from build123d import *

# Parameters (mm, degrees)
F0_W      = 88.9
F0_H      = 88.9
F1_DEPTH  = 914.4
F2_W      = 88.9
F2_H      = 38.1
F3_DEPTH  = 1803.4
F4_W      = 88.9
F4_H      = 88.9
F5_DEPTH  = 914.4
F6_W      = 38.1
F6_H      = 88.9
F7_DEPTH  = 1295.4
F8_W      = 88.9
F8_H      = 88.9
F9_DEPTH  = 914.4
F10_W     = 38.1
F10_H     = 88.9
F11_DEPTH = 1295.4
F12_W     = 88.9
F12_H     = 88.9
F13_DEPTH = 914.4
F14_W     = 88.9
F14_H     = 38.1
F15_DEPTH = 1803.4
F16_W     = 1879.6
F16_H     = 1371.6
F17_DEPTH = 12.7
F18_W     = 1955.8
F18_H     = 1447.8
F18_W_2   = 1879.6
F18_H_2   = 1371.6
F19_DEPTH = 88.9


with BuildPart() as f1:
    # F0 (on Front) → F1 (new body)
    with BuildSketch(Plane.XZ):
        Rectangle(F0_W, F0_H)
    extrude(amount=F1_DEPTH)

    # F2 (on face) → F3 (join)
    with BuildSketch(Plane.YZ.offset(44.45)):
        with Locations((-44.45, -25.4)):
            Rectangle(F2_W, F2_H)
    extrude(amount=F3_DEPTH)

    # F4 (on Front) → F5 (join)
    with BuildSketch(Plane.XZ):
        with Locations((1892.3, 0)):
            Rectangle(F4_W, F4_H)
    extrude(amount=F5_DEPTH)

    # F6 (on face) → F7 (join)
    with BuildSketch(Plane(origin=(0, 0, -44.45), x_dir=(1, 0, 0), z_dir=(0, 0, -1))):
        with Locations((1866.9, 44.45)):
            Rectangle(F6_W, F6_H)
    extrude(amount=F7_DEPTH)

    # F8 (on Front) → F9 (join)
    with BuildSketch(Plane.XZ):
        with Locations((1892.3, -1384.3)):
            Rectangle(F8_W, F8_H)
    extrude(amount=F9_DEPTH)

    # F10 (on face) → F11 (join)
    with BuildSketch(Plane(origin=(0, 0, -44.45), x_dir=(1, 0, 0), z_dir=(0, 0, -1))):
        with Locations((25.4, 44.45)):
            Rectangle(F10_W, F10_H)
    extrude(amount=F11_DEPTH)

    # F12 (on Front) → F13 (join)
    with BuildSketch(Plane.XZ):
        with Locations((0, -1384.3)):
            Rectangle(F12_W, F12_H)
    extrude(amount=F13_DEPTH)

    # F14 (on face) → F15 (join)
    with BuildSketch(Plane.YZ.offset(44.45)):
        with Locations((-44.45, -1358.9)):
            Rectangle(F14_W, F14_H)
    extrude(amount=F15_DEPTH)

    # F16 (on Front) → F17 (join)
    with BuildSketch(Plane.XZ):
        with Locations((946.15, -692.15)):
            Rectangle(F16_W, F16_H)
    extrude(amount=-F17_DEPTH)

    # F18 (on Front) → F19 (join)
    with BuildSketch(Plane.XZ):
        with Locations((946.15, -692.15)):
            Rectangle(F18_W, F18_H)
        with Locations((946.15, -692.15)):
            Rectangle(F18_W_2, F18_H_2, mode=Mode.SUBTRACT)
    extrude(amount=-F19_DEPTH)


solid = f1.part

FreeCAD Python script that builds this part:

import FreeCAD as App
import Part
import Sketcher

V = App.Vector
Q = App.Units.Quantity

doc = App.newDocument("Part")
body = doc.addObject("PartDesign::Body", "Body")

# Sketch on XZ plane
sketch1 = doc.addObject("Sketcher::SketchObject", "Sketch")
body.addObject(sketch1)
sketch1.AttachmentSupport = (doc.XZ_Plane, [""])
sketch1.MapMode = "FlatFace"
sketch1.addGeometry(Part.LineSegment(V(-44, 44, 0), V(-44, -44, 0)), False)
sketch1.addGeometry(Part.LineSegment(V(-44, -44, 0), V(44, -44, 0)), False)
sketch1.addGeometry(Part.LineSegment(V(44, -44, 0), V(44, 44, 0)), False)
sketch1.addGeometry(Part.LineSegment(V(44, 44, 0), V(-44, 44, 0)), False)
sketch1.addConstraint(Sketcher.Constraint("Coincident", 0, 2, 1, 1))
sketch1.addConstraint(Sketcher.Constraint("Coincident", 1, 2, 2, 1))
sketch1.addConstraint(Sketcher.Constraint("Coincident", 2, 2, 3, 1))
sketch1.addConstraint(Sketcher.Constraint("Coincident", 3, 2, 0, 1))
sketch1.addConstraint(Sketcher.Constraint("Vertical", 0))
sketch1.addConstraint(Sketcher.Constraint("Horizontal", 1))
sketch1.addConstraint(Sketcher.Constraint("Vertical", 2))
sketch1.addConstraint(Sketcher.Constraint("Horizontal", 3))
sketch1.addConstraint(Sketcher.Constraint("Symmetric", 0, 2, 2, 2, -1, 1))
sketch1.addConstraint(Sketcher.Constraint("Equal", 3, 0))
sketch1.addConstraint(Sketcher.Constraint("DistanceX", 1, 1, 1, 2, Q("3.5 in")))
pad1 = doc.addObject("PartDesign::Pad", "Pad")
body.addObject(pad1)
pad1.Profile = sketch1
pad1.Length = Q("36 in")

# Sketch on YZ plane
sketch2 = doc.addObject("Sketcher::SketchObject", "Sketch001")
body.addObject(sketch2)
sketch2.AttachmentSupport = (doc.YZ_Plane, [""])
sketch2.MapMode = "FlatFace"
sketch2.AttachmentOffset = App.Placement(V(0, 0, 1.75 * 25.4), App.Rotation())
sketch2.addGeometry(Part.LineSegment(V(-89, -6, 0), V(-89, -44, 0)), False)
sketch2.addGeometry(Part.LineSegment(V(-89, -44, 0), V(0, -44, 0)), False)
sketch2.addGeometry(Part.LineSegment(V(0, -44, 0), V(0, -6, 0)), False)
sketch2.addGeometry(Part.LineSegment(V(0, -6, 0), V(-89, -6, 0)), False)
sketch2.addConstraint(Sketcher.Constraint("Coincident", 0, 2, 1, 1))
sketch2.addConstraint(Sketcher.Constraint("Coincident", 1, 2, 2, 1))
sketch2.addConstraint(Sketcher.Constraint("Coincident", 2, 2, 3, 1))
sketch2.addConstraint(Sketcher.Constraint("Coincident", 3, 2, 0, 1))
sketch2.addConstraint(Sketcher.Constraint("Vertical", 0))
sketch2.addConstraint(Sketcher.Constraint("Horizontal", 1))
sketch2.addConstraint(Sketcher.Constraint("Vertical", 2))
sketch2.addConstraint(Sketcher.Constraint("Horizontal", 3))
sketch2.addConstraint(Sketcher.Constraint("PointOnObject", 1, 2, -2))
sketch2.addConstraint(Sketcher.Constraint("DistanceX", 1, 1, 1, 2, Q("3.5 in")))
sketch2.addConstraint(Sketcher.Constraint("DistanceY", 0, 2, 0, 1, Q("1.5 in")))
sketch2.addConstraint(Sketcher.Constraint("DistanceY", 0, 2, -1, 1, Q("1.75 in")))
pad2 = doc.addObject("PartDesign::Pad", "Pad001")
body.addObject(pad2)
pad2.Profile = sketch2
pad2.Length = Q("71 in")

# Sketch on XZ plane
sketch3 = doc.addObject("Sketcher::SketchObject", "Sketch002")
body.addObject(sketch3)
sketch3.AttachmentSupport = (doc.XZ_Plane, [""])
sketch3.MapMode = "FlatFace"
sketch3.addGeometry(Part.LineSegment(V(1848, 44, 0), V(1848, -44, 0)), False)
sketch3.addGeometry(Part.LineSegment(V(1848, -44, 0), V(1937, -44, 0)), False)
sketch3.addGeometry(Part.LineSegment(V(1937, -44, 0), V(1937, 44, 0)), False)
sketch3.addGeometry(Part.LineSegment(V(1937, 44, 0), V(1848, 44, 0)), False)
sketch3.addConstraint(Sketcher.Constraint("Coincident", 0, 2, 1, 1))
sketch3.addConstraint(Sketcher.Constraint("Coincident", 1, 2, 2, 1))
sketch3.addConstraint(Sketcher.Constraint("Coincident", 2, 2, 3, 1))
sketch3.addConstraint(Sketcher.Constraint("Coincident", 3, 2, 0, 1))
sketch3.addConstraint(Sketcher.Constraint("Vertical", 0))
sketch3.addConstraint(Sketcher.Constraint("Horizontal", 1))
sketch3.addConstraint(Sketcher.Constraint("Vertical", 2))
sketch3.addConstraint(Sketcher.Constraint("Horizontal", 3))
sketch3.addConstraint(Sketcher.Constraint("Equal", 3, 0))
sketch3.addConstraint(Sketcher.Constraint("DistanceX", 1, 1, 1, 2, Q("3.5 in")))
sketch3.addConstraint(Sketcher.Constraint("DistanceX", -1, 1, 0, 2, Q("72.75 in")))
sketch3.addConstraint(Sketcher.Constraint("DistanceY", 0, 2, -1, 1, Q("1.75 in")))
pad3 = doc.addObject("PartDesign::Pad", "Pad002")
body.addObject(pad3)
pad3.Profile = sketch3
pad3.Length = Q("36 in")

# Sketch on XY plane
sketch4 = doc.addObject("Sketcher::SketchObject", "Sketch003")
body.addObject(sketch4)
sketch4.AttachmentSupport = (doc.XY_Plane, [""])
sketch4.MapMode = "FlatFace"
sketch4.AttachmentOffset = App.Placement(V(0, 0, -1.75 * 25.4), App.Rotation())
sketch4.addGeometry(Part.LineSegment(V(1848, -89, 0), V(1848, 0, 0)), False)
sketch4.addGeometry(Part.LineSegment(V(1848, 0, 0), V(1886, 0, 0)), False)
sketch4.addGeometry(Part.LineSegment(V(1886, 0, 0), V(1886, -89, 0)), False)
sketch4.addGeometry(Part.LineSegment(V(1886, -89, 0), V(1848, -89, 0)), False)
sketch4.addConstraint(Sketcher.Constraint("Coincident", 0, 2, 1, 1))
sketch4.addConstraint(Sketcher.Constraint("Coincident", 1, 2, 2, 1))
sketch4.addConstraint(Sketcher.Constraint("Coincident", 2, 2, 3, 1))
sketch4.addConstraint(Sketcher.Constraint("Coincident", 3, 2, 0, 1))
sketch4.addConstraint(Sketcher.Constraint("Vertical", 0))
sketch4.addConstraint(Sketcher.Constraint("Horizontal", 1))
sketch4.addConstraint(Sketcher.Constraint("Vertical", 2))
sketch4.addConstraint(Sketcher.Constraint("Horizontal", 3))
sketch4.addConstraint(Sketcher.Constraint("PointOnObject", 0, 2, -1))
sketch4.addConstraint(Sketcher.Constraint("DistanceX", 1, 1, 1, 2, Q("1.5 in")))
sketch4.addConstraint(Sketcher.Constraint("DistanceY", 0, 1, 0, 2, Q("3.5 in")))
sketch4.addConstraint(Sketcher.Constraint("DistanceX", -1, 1, 0, 2, Q("72.75 in")))
pad4 = doc.addObject("PartDesign::Pad", "Pad003")
body.addObject(pad4)
pad4.Profile = sketch4
pad4.Length = Q("51 in")
pad4.Reversed = True

# Sketch on XZ plane
sketch5 = doc.addObject("Sketcher::SketchObject", "Sketch004")
body.addObject(sketch5)
sketch5.AttachmentSupport = (doc.XZ_Plane, [""])
sketch5.MapMode = "FlatFace"
sketch5.addGeometry(Part.LineSegment(V(1848, -1340, 0), V(1848, -1429, 0)), False)
sketch5.addGeometry(Part.LineSegment(V(1848, -1429, 0), V(1937, -1429, 0)), False)
sketch5.addGeometry(Part.LineSegment(V(1937, -1429, 0), V(1937, -1340, 0)), False)
sketch5.addGeometry(Part.LineSegment(V(1937, -1340, 0), V(1848, -1340, 0)), False)
sketch5.addConstraint(Sketcher.Constraint("Coincident", 0, 2, 1, 1))
sketch5.addConstraint(Sketcher.Constraint("Coincident", 1, 2, 2, 1))
sketch5.addConstraint(Sketcher.Constraint("Coincident", 2, 2, 3, 1))
sketch5.addConstraint(Sketcher.Constraint("Coincident", 3, 2, 0, 1))
sketch5.addConstraint(Sketcher.Constraint("Vertical", 0))
sketch5.addConstraint(Sketcher.Constraint("Horizontal", 1))
sketch5.addConstraint(Sketcher.Constraint("Vertical", 2))
sketch5.addConstraint(Sketcher.Constraint("Horizontal", 3))
sketch5.addConstraint(Sketcher.Constraint("Equal", 3, 0))
sketch5.addConstraint(Sketcher.Constraint("DistanceX", 1, 1, 1, 2, Q("3.5 in")))
sketch5.addConstraint(Sketcher.Constraint("DistanceX", -1, 1, 0, 2, Q("72.75 in")))
sketch5.addConstraint(Sketcher.Constraint("DistanceY", 0, 2, -1, 1, Q("56.25 in")))
pad5 = doc.addObject("PartDesign::Pad", "Pad004")
body.addObject(pad5)
pad5.Profile = sketch5
pad5.Length = Q("36 in")

# Sketch on XY plane
sketch6 = doc.addObject("Sketcher::SketchObject", "Sketch005")
body.addObject(sketch6)
sketch6.AttachmentSupport = (doc.XY_Plane, [""])
sketch6.MapMode = "FlatFace"
sketch6.AttachmentOffset = App.Placement(V(0, 0, -1.75 * 25.4), App.Rotation())
sketch6.addGeometry(Part.LineSegment(V(6, -89, 0), V(6, 0, 0)), False)
sketch6.addGeometry(Part.LineSegment(V(6, 0, 0), V(44, 0, 0)), False)
sketch6.addGeometry(Part.LineSegment(V(44, 0, 0), V(44, -89, 0)), False)
sketch6.addGeometry(Part.LineSegment(V(44, -89, 0), V(6, -89, 0)), False)
sketch6.addConstraint(Sketcher.Constraint("Coincident", 0, 2, 1, 1))
sketch6.addConstraint(Sketcher.Constraint("Coincident", 1, 2, 2, 1))
sketch6.addConstraint(Sketcher.Constraint("Coincident", 2, 2, 3, 1))
sketch6.addConstraint(Sketcher.Constraint("Coincident", 3, 2, 0, 1))
sketch6.addConstraint(Sketcher.Constraint("Vertical", 0))
sketch6.addConstraint(Sketcher.Constraint("Horizontal", 1))
sketch6.addConstraint(Sketcher.Constraint("Vertical", 2))
sketch6.addConstraint(Sketcher.Constraint("Horizontal", 3))
sketch6.addConstraint(Sketcher.Constraint("PointOnObject", 0, 2, -1))
sketch6.addConstraint(Sketcher.Constraint("DistanceX", 1, 1, 1, 2, Q("1.5 in")))
sketch6.addConstraint(Sketcher.Constraint("DistanceY", 0, 1, 0, 2, Q("3.5 in")))
sketch6.addConstraint(Sketcher.Constraint("DistanceX", -1, 1, 0, 2, Q("0.25 in")))
pad6 = doc.addObject("PartDesign::Pad", "Pad005")
body.addObject(pad6)
pad6.Profile = sketch6
pad6.Length = Q("51 in")
pad6.Reversed = True

# Sketch on XZ plane
sketch7 = doc.addObject("Sketcher::SketchObject", "Sketch006")
body.addObject(sketch7)
sketch7.AttachmentSupport = (doc.XZ_Plane, [""])
sketch7.MapMode = "FlatFace"
sketch7.addGeometry(Part.LineSegment(V(-44, -1340, 0), V(-44, -1429, 0)), False)
sketch7.addGeometry(Part.LineSegment(V(-44, -1429, 0), V(44, -1429, 0)), False)
sketch7.addGeometry(Part.LineSegment(V(44, -1429, 0), V(44, -1340, 0)), False)
sketch7.addGeometry(Part.LineSegment(V(44, -1340, 0), V(-44, -1340, 0)), False)
sketch7.addConstraint(Sketcher.Constraint("Coincident", 0, 2, 1, 1))
sketch7.addConstraint(Sketcher.Constraint("Coincident", 1, 2, 2, 1))
sketch7.addConstraint(Sketcher.Constraint("Coincident", 2, 2, 3, 1))
sketch7.addConstraint(Sketcher.Constraint("Coincident", 3, 2, 0, 1))
sketch7.addConstraint(Sketcher.Constraint("Vertical", 0))
sketch7.addConstraint(Sketcher.Constraint("Horizontal", 1))
sketch7.addConstraint(Sketcher.Constraint("Vertical", 2))
sketch7.addConstraint(Sketcher.Constraint("Horizontal", 3))
sketch7.addConstraint(Sketcher.Constraint("Equal", 3, 0))
sketch7.addConstraint(Sketcher.Constraint("DistanceX", 1, 1, 1, 2, Q("3.5 in")))
sketch7.addConstraint(Sketcher.Constraint("DistanceX", 0, 2, -1, 1, Q("1.75 in")))
sketch7.addConstraint(Sketcher.Constraint("DistanceY", 0, 2, -1, 1, Q("56.25 in")))
pad7 = doc.addObject("PartDesign::Pad", "Pad006")
body.addObject(pad7)
pad7.Profile = sketch7
pad7.Length = Q("36 in")

# Sketch on YZ plane
sketch8 = doc.addObject("Sketcher::SketchObject", "Sketch007")
body.addObject(sketch8)
sketch8.AttachmentSupport = (doc.YZ_Plane, [""])
sketch8.MapMode = "FlatFace"
sketch8.AttachmentOffset = App.Placement(V(0, 0, 1.75 * 25.4), App.Rotation())
sketch8.addGeometry(Part.LineSegment(V(-89, -1340, 0), V(-89, -1378, 0)), False)
sketch8.addGeometry(Part.LineSegment(V(-89, -1378, 0), V(0, -1378, 0)), False)
sketch8.addGeometry(Part.LineSegment(V(0, -1378, 0), V(0, -1340, 0)), False)
sketch8.addGeometry(Part.LineSegment(V(0, -1340, 0), V(-89, -1340, 0)), False)
sketch8.addConstraint(Sketcher.Constraint("Coincident", 0, 2, 1, 1))
sketch8.addConstraint(Sketcher.Constraint("Coincident", 1, 2, 2, 1))
sketch8.addConstraint(Sketcher.Constraint("Coincident", 2, 2, 3, 1))
sketch8.addConstraint(Sketcher.Constraint("Coincident", 3, 2, 0, 1))
sketch8.addConstraint(Sketcher.Constraint("Vertical", 0))
sketch8.addConstraint(Sketcher.Constraint("Horizontal", 1))
sketch8.addConstraint(Sketcher.Constraint("Vertical", 2))
sketch8.addConstraint(Sketcher.Constraint("Horizontal", 3))
sketch8.addConstraint(Sketcher.Constraint("PointOnObject", 1, 2, -2))
sketch8.addConstraint(Sketcher.Constraint("DistanceX", 1, 1, 1, 2, Q("3.5 in")))
sketch8.addConstraint(Sketcher.Constraint("DistanceY", 0, 2, 0, 1, Q("1.5 in")))
sketch8.addConstraint(Sketcher.Constraint("DistanceY", 0, 2, -1, 1, Q("54.25 in")))
pad8 = doc.addObject("PartDesign::Pad", "Pad007")
body.addObject(pad8)
pad8.Profile = sketch8
pad8.Length = Q("71 in")

# Sketch on XZ plane
sketch9 = doc.addObject("Sketcher::SketchObject", "Sketch008")
body.addObject(sketch9)
sketch9.AttachmentSupport = (doc.XZ_Plane, [""])
sketch9.MapMode = "FlatFace"
sketch9.addGeometry(Part.LineSegment(V(6, -6, 0), V(6, -1378, 0)), False)
sketch9.addGeometry(Part.LineSegment(V(6, -1378, 0), V(1886, -1378, 0)), False)
sketch9.addGeometry(Part.LineSegment(V(1886, -1378, 0), V(1886, -6, 0)), False)
sketch9.addGeometry(Part.LineSegment(V(1886, -6, 0), V(6, -6, 0)), False)
sketch9.addConstraint(Sketcher.Constraint("Coincident", 0, 2, 1, 1))
sketch9.addConstraint(Sketcher.Constraint("Coincident", 1, 2, 2, 1))
sketch9.addConstraint(Sketcher.Constraint("Coincident", 2, 2, 3, 1))
sketch9.addConstraint(Sketcher.Constraint("Coincident", 3, 2, 0, 1))
sketch9.addConstraint(Sketcher.Constraint("Vertical", 0))
sketch9.addConstraint(Sketcher.Constraint("Horizontal", 1))
sketch9.addConstraint(Sketcher.Constraint("Vertical", 2))
sketch9.addConstraint(Sketcher.Constraint("Horizontal", 3))
sketch9.addConstraint(Sketcher.Constraint("DistanceX", 1, 1, 1, 2, Q("74 in")))
sketch9.addConstraint(Sketcher.Constraint("DistanceY", 0, 2, 0, 1, Q("54 in")))
sketch9.addConstraint(Sketcher.Constraint("DistanceX", -1, 1, 0, 2, Q("0.25 in")))
sketch9.addConstraint(Sketcher.Constraint("DistanceY", 0, 2, -1, 1, Q("54.25 in")))
pad9 = doc.addObject("PartDesign::Pad", "Pad008")
body.addObject(pad9)
pad9.Profile = sketch9
pad9.Length = Q("0.5 in")
pad9.Reversed = True

# Sketch on XZ plane
sketch10 = doc.addObject("Sketcher::SketchObject", "Sketch009")
body.addObject(sketch10)
sketch10.AttachmentSupport = (doc.XZ_Plane, [""])
sketch10.MapMode = "FlatFace"
sketch10.addGeometry(Part.LineSegment(V(-32, 32, 0), V(-32, -1416, 0)), False)
sketch10.addGeometry(Part.LineSegment(V(-32, -1416, 0), V(1924, -1416, 0)), False)
sketch10.addGeometry(Part.LineSegment(V(1924, -1416, 0), V(1924, 32, 0)), False)
sketch10.addGeometry(Part.LineSegment(V(1924, 32, 0), V(-32, 32, 0)), False)
sketch10.addGeometry(Part.LineSegment(V(1886, -1378, 0), V(6, -1378, 0)), False)
sketch10.addGeometry(Part.LineSegment(V(6, -1378, 0), V(6, -6, 0)), False)
sketch10.addGeometry(Part.LineSegment(V(6, -6, 0), V(1886, -6, 0)), False)
sketch10.addGeometry(Part.LineSegment(V(1886, -6, 0), V(1886, -1378, 0)), False)
sketch10.addConstraint(Sketcher.Constraint("Coincident", 0, 2, 1, 1))
sketch10.addConstraint(Sketcher.Constraint("Coincident", 1, 2, 2, 1))
sketch10.addConstraint(Sketcher.Constraint("Coincident", 2, 2, 3, 1))
sketch10.addConstraint(Sketcher.Constraint("Coincident", 3, 2, 0, 1))
sketch10.addConstraint(Sketcher.Constraint("Coincident", 4, 2, 5, 1))
sketch10.addConstraint(Sketcher.Constraint("Coincident", 5, 2, 6, 1))
sketch10.addConstraint(Sketcher.Constraint("Coincident", 6, 2, 7, 1))
sketch10.addConstraint(Sketcher.Constraint("Coincident", 7, 2, 4, 1))
sketch10.addConstraint(Sketcher.Constraint("Vertical", 0))
sketch10.addConstraint(Sketcher.Constraint("Horizontal", 1))
sketch10.addConstraint(Sketcher.Constraint("Vertical", 2))
sketch10.addConstraint(Sketcher.Constraint("Horizontal", 3))
sketch10.addConstraint(Sketcher.Constraint("Horizontal", 4))
sketch10.addConstraint(Sketcher.Constraint("Vertical", 5))
sketch10.addConstraint(Sketcher.Constraint("Horizontal", 6))
sketch10.addConstraint(Sketcher.Constraint("Vertical", 7))
sketch10.addConstraint(Sketcher.Constraint("DistanceX", 1, 1, 1, 2, Q("77 in")))
sketch10.addConstraint(Sketcher.Constraint("DistanceX", 4, 2, 4, 1, Q("74 in")))
sketch10.addConstraint(Sketcher.Constraint("DistanceY", 0, 2, 0, 1, Q("57 in")))
sketch10.addConstraint(Sketcher.Constraint("DistanceY", 5, 1, 5, 2, Q("54 in")))
sketch10.addConstraint(Sketcher.Constraint("DistanceX", 0, 2, 4, 2, Q("1.5 in")))
sketch10.addConstraint(Sketcher.Constraint("DistanceY", 0, 2, 4, 2, Q("1.5 in")))
sketch10.addConstraint(Sketcher.Constraint("DistanceX", 0, 2, -1, 1, Q("1.25 in")))
sketch10.addConstraint(Sketcher.Constraint("DistanceY", 0, 2, -1, 1, Q("55.75 in")))
pad10 = doc.addObject("PartDesign::Pad", "Pad009")
body.addObject(pad10)
pad10.Profile = sketch10
pad10.Length = Q("3.5 in")
pad10.Reversed = True

doc.recompute()
